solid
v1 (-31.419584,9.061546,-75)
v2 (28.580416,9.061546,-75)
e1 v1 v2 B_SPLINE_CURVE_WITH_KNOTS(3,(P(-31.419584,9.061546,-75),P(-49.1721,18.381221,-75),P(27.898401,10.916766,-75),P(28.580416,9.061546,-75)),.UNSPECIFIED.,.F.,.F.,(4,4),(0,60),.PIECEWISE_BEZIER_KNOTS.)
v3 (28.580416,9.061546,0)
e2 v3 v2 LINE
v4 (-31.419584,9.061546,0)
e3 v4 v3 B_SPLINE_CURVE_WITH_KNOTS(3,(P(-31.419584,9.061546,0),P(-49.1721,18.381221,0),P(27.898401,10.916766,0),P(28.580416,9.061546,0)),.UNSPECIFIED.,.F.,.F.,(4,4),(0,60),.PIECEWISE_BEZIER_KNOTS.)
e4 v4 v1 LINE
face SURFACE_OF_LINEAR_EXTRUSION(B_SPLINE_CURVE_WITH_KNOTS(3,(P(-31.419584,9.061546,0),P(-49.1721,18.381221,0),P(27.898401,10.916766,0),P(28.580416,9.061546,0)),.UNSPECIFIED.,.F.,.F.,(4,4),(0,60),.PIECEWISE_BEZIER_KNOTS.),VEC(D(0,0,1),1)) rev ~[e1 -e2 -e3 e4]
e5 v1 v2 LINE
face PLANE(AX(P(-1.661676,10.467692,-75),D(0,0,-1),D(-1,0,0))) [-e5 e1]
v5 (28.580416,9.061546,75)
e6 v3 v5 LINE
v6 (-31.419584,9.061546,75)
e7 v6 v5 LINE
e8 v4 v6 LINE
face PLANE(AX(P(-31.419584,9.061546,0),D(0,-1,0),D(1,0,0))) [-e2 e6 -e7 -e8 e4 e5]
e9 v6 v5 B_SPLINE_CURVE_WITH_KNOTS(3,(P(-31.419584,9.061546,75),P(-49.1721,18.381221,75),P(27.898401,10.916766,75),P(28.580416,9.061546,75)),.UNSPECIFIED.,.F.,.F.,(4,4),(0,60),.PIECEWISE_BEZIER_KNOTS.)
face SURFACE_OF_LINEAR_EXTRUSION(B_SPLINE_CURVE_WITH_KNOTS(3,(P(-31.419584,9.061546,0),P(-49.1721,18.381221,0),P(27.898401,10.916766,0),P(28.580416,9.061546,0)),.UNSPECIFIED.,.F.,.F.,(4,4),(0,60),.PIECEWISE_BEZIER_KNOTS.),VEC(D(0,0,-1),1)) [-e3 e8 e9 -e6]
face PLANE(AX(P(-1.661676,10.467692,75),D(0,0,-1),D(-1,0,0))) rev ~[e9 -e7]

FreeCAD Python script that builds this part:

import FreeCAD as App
import Part
import Sketcher
from FreeCAD import Vector

doc = App.newDocument("Part")
params = doc.addObject("Spreadsheet::Sheet", "Params")
for row, (alias, value) in enumerate([
    ("pad1_length", "150 mm"),
], start=1):
    params.set(f"A{row}", alias)
    params.set(f"B{row}", "=" + value)
    params.setAlias(f"B{row}", alias)

body = doc.addObject("PartDesign::Body", "Body")

# Sketch on XY plane
sketch1 = doc.addObject("Sketcher::SketchObject", "Sketch")
body.addObject(sketch1)
sketch1.AttachmentSupport = (doc.XY_Plane, [""])
sketch1.MapMode = "FlatFace"
sketch1.addGeometry(Part.BSplineCurve([Vector(-31.419584, 9.061546, 0), Vector(-49.1721, 18.381221, 0), Vector(27.898401, 10.916766, 0), Vector(28.580416, 9.061546, 0)], [4, 4], [0, 60], False, 3, [1, 1, 1, 1], False), False)
sketch1.addGeometry(Part.LineSegment(Vector(-31.419584, 9.061546, 0), Vector(28.580416, 9.061546, 0)), False)
sketch1.addConstraint(Sketcher.Constraint("Block", 0))
sketch1.addConstraint(Sketcher.Constraint("Coincident", 0, 1, 1, 1))
sketch1.addConstraint(Sketcher.Constraint("Coincident", 1, 2, 0, 2))
pad1 = doc.addObject("PartDesign::Pad", "Pad")
body.addObject(pad1)
pad1.Profile = sketch1
pad1.setExpression("Length", "Params.pad1_length")
pad1.Midplane = True

doc.recompute()
